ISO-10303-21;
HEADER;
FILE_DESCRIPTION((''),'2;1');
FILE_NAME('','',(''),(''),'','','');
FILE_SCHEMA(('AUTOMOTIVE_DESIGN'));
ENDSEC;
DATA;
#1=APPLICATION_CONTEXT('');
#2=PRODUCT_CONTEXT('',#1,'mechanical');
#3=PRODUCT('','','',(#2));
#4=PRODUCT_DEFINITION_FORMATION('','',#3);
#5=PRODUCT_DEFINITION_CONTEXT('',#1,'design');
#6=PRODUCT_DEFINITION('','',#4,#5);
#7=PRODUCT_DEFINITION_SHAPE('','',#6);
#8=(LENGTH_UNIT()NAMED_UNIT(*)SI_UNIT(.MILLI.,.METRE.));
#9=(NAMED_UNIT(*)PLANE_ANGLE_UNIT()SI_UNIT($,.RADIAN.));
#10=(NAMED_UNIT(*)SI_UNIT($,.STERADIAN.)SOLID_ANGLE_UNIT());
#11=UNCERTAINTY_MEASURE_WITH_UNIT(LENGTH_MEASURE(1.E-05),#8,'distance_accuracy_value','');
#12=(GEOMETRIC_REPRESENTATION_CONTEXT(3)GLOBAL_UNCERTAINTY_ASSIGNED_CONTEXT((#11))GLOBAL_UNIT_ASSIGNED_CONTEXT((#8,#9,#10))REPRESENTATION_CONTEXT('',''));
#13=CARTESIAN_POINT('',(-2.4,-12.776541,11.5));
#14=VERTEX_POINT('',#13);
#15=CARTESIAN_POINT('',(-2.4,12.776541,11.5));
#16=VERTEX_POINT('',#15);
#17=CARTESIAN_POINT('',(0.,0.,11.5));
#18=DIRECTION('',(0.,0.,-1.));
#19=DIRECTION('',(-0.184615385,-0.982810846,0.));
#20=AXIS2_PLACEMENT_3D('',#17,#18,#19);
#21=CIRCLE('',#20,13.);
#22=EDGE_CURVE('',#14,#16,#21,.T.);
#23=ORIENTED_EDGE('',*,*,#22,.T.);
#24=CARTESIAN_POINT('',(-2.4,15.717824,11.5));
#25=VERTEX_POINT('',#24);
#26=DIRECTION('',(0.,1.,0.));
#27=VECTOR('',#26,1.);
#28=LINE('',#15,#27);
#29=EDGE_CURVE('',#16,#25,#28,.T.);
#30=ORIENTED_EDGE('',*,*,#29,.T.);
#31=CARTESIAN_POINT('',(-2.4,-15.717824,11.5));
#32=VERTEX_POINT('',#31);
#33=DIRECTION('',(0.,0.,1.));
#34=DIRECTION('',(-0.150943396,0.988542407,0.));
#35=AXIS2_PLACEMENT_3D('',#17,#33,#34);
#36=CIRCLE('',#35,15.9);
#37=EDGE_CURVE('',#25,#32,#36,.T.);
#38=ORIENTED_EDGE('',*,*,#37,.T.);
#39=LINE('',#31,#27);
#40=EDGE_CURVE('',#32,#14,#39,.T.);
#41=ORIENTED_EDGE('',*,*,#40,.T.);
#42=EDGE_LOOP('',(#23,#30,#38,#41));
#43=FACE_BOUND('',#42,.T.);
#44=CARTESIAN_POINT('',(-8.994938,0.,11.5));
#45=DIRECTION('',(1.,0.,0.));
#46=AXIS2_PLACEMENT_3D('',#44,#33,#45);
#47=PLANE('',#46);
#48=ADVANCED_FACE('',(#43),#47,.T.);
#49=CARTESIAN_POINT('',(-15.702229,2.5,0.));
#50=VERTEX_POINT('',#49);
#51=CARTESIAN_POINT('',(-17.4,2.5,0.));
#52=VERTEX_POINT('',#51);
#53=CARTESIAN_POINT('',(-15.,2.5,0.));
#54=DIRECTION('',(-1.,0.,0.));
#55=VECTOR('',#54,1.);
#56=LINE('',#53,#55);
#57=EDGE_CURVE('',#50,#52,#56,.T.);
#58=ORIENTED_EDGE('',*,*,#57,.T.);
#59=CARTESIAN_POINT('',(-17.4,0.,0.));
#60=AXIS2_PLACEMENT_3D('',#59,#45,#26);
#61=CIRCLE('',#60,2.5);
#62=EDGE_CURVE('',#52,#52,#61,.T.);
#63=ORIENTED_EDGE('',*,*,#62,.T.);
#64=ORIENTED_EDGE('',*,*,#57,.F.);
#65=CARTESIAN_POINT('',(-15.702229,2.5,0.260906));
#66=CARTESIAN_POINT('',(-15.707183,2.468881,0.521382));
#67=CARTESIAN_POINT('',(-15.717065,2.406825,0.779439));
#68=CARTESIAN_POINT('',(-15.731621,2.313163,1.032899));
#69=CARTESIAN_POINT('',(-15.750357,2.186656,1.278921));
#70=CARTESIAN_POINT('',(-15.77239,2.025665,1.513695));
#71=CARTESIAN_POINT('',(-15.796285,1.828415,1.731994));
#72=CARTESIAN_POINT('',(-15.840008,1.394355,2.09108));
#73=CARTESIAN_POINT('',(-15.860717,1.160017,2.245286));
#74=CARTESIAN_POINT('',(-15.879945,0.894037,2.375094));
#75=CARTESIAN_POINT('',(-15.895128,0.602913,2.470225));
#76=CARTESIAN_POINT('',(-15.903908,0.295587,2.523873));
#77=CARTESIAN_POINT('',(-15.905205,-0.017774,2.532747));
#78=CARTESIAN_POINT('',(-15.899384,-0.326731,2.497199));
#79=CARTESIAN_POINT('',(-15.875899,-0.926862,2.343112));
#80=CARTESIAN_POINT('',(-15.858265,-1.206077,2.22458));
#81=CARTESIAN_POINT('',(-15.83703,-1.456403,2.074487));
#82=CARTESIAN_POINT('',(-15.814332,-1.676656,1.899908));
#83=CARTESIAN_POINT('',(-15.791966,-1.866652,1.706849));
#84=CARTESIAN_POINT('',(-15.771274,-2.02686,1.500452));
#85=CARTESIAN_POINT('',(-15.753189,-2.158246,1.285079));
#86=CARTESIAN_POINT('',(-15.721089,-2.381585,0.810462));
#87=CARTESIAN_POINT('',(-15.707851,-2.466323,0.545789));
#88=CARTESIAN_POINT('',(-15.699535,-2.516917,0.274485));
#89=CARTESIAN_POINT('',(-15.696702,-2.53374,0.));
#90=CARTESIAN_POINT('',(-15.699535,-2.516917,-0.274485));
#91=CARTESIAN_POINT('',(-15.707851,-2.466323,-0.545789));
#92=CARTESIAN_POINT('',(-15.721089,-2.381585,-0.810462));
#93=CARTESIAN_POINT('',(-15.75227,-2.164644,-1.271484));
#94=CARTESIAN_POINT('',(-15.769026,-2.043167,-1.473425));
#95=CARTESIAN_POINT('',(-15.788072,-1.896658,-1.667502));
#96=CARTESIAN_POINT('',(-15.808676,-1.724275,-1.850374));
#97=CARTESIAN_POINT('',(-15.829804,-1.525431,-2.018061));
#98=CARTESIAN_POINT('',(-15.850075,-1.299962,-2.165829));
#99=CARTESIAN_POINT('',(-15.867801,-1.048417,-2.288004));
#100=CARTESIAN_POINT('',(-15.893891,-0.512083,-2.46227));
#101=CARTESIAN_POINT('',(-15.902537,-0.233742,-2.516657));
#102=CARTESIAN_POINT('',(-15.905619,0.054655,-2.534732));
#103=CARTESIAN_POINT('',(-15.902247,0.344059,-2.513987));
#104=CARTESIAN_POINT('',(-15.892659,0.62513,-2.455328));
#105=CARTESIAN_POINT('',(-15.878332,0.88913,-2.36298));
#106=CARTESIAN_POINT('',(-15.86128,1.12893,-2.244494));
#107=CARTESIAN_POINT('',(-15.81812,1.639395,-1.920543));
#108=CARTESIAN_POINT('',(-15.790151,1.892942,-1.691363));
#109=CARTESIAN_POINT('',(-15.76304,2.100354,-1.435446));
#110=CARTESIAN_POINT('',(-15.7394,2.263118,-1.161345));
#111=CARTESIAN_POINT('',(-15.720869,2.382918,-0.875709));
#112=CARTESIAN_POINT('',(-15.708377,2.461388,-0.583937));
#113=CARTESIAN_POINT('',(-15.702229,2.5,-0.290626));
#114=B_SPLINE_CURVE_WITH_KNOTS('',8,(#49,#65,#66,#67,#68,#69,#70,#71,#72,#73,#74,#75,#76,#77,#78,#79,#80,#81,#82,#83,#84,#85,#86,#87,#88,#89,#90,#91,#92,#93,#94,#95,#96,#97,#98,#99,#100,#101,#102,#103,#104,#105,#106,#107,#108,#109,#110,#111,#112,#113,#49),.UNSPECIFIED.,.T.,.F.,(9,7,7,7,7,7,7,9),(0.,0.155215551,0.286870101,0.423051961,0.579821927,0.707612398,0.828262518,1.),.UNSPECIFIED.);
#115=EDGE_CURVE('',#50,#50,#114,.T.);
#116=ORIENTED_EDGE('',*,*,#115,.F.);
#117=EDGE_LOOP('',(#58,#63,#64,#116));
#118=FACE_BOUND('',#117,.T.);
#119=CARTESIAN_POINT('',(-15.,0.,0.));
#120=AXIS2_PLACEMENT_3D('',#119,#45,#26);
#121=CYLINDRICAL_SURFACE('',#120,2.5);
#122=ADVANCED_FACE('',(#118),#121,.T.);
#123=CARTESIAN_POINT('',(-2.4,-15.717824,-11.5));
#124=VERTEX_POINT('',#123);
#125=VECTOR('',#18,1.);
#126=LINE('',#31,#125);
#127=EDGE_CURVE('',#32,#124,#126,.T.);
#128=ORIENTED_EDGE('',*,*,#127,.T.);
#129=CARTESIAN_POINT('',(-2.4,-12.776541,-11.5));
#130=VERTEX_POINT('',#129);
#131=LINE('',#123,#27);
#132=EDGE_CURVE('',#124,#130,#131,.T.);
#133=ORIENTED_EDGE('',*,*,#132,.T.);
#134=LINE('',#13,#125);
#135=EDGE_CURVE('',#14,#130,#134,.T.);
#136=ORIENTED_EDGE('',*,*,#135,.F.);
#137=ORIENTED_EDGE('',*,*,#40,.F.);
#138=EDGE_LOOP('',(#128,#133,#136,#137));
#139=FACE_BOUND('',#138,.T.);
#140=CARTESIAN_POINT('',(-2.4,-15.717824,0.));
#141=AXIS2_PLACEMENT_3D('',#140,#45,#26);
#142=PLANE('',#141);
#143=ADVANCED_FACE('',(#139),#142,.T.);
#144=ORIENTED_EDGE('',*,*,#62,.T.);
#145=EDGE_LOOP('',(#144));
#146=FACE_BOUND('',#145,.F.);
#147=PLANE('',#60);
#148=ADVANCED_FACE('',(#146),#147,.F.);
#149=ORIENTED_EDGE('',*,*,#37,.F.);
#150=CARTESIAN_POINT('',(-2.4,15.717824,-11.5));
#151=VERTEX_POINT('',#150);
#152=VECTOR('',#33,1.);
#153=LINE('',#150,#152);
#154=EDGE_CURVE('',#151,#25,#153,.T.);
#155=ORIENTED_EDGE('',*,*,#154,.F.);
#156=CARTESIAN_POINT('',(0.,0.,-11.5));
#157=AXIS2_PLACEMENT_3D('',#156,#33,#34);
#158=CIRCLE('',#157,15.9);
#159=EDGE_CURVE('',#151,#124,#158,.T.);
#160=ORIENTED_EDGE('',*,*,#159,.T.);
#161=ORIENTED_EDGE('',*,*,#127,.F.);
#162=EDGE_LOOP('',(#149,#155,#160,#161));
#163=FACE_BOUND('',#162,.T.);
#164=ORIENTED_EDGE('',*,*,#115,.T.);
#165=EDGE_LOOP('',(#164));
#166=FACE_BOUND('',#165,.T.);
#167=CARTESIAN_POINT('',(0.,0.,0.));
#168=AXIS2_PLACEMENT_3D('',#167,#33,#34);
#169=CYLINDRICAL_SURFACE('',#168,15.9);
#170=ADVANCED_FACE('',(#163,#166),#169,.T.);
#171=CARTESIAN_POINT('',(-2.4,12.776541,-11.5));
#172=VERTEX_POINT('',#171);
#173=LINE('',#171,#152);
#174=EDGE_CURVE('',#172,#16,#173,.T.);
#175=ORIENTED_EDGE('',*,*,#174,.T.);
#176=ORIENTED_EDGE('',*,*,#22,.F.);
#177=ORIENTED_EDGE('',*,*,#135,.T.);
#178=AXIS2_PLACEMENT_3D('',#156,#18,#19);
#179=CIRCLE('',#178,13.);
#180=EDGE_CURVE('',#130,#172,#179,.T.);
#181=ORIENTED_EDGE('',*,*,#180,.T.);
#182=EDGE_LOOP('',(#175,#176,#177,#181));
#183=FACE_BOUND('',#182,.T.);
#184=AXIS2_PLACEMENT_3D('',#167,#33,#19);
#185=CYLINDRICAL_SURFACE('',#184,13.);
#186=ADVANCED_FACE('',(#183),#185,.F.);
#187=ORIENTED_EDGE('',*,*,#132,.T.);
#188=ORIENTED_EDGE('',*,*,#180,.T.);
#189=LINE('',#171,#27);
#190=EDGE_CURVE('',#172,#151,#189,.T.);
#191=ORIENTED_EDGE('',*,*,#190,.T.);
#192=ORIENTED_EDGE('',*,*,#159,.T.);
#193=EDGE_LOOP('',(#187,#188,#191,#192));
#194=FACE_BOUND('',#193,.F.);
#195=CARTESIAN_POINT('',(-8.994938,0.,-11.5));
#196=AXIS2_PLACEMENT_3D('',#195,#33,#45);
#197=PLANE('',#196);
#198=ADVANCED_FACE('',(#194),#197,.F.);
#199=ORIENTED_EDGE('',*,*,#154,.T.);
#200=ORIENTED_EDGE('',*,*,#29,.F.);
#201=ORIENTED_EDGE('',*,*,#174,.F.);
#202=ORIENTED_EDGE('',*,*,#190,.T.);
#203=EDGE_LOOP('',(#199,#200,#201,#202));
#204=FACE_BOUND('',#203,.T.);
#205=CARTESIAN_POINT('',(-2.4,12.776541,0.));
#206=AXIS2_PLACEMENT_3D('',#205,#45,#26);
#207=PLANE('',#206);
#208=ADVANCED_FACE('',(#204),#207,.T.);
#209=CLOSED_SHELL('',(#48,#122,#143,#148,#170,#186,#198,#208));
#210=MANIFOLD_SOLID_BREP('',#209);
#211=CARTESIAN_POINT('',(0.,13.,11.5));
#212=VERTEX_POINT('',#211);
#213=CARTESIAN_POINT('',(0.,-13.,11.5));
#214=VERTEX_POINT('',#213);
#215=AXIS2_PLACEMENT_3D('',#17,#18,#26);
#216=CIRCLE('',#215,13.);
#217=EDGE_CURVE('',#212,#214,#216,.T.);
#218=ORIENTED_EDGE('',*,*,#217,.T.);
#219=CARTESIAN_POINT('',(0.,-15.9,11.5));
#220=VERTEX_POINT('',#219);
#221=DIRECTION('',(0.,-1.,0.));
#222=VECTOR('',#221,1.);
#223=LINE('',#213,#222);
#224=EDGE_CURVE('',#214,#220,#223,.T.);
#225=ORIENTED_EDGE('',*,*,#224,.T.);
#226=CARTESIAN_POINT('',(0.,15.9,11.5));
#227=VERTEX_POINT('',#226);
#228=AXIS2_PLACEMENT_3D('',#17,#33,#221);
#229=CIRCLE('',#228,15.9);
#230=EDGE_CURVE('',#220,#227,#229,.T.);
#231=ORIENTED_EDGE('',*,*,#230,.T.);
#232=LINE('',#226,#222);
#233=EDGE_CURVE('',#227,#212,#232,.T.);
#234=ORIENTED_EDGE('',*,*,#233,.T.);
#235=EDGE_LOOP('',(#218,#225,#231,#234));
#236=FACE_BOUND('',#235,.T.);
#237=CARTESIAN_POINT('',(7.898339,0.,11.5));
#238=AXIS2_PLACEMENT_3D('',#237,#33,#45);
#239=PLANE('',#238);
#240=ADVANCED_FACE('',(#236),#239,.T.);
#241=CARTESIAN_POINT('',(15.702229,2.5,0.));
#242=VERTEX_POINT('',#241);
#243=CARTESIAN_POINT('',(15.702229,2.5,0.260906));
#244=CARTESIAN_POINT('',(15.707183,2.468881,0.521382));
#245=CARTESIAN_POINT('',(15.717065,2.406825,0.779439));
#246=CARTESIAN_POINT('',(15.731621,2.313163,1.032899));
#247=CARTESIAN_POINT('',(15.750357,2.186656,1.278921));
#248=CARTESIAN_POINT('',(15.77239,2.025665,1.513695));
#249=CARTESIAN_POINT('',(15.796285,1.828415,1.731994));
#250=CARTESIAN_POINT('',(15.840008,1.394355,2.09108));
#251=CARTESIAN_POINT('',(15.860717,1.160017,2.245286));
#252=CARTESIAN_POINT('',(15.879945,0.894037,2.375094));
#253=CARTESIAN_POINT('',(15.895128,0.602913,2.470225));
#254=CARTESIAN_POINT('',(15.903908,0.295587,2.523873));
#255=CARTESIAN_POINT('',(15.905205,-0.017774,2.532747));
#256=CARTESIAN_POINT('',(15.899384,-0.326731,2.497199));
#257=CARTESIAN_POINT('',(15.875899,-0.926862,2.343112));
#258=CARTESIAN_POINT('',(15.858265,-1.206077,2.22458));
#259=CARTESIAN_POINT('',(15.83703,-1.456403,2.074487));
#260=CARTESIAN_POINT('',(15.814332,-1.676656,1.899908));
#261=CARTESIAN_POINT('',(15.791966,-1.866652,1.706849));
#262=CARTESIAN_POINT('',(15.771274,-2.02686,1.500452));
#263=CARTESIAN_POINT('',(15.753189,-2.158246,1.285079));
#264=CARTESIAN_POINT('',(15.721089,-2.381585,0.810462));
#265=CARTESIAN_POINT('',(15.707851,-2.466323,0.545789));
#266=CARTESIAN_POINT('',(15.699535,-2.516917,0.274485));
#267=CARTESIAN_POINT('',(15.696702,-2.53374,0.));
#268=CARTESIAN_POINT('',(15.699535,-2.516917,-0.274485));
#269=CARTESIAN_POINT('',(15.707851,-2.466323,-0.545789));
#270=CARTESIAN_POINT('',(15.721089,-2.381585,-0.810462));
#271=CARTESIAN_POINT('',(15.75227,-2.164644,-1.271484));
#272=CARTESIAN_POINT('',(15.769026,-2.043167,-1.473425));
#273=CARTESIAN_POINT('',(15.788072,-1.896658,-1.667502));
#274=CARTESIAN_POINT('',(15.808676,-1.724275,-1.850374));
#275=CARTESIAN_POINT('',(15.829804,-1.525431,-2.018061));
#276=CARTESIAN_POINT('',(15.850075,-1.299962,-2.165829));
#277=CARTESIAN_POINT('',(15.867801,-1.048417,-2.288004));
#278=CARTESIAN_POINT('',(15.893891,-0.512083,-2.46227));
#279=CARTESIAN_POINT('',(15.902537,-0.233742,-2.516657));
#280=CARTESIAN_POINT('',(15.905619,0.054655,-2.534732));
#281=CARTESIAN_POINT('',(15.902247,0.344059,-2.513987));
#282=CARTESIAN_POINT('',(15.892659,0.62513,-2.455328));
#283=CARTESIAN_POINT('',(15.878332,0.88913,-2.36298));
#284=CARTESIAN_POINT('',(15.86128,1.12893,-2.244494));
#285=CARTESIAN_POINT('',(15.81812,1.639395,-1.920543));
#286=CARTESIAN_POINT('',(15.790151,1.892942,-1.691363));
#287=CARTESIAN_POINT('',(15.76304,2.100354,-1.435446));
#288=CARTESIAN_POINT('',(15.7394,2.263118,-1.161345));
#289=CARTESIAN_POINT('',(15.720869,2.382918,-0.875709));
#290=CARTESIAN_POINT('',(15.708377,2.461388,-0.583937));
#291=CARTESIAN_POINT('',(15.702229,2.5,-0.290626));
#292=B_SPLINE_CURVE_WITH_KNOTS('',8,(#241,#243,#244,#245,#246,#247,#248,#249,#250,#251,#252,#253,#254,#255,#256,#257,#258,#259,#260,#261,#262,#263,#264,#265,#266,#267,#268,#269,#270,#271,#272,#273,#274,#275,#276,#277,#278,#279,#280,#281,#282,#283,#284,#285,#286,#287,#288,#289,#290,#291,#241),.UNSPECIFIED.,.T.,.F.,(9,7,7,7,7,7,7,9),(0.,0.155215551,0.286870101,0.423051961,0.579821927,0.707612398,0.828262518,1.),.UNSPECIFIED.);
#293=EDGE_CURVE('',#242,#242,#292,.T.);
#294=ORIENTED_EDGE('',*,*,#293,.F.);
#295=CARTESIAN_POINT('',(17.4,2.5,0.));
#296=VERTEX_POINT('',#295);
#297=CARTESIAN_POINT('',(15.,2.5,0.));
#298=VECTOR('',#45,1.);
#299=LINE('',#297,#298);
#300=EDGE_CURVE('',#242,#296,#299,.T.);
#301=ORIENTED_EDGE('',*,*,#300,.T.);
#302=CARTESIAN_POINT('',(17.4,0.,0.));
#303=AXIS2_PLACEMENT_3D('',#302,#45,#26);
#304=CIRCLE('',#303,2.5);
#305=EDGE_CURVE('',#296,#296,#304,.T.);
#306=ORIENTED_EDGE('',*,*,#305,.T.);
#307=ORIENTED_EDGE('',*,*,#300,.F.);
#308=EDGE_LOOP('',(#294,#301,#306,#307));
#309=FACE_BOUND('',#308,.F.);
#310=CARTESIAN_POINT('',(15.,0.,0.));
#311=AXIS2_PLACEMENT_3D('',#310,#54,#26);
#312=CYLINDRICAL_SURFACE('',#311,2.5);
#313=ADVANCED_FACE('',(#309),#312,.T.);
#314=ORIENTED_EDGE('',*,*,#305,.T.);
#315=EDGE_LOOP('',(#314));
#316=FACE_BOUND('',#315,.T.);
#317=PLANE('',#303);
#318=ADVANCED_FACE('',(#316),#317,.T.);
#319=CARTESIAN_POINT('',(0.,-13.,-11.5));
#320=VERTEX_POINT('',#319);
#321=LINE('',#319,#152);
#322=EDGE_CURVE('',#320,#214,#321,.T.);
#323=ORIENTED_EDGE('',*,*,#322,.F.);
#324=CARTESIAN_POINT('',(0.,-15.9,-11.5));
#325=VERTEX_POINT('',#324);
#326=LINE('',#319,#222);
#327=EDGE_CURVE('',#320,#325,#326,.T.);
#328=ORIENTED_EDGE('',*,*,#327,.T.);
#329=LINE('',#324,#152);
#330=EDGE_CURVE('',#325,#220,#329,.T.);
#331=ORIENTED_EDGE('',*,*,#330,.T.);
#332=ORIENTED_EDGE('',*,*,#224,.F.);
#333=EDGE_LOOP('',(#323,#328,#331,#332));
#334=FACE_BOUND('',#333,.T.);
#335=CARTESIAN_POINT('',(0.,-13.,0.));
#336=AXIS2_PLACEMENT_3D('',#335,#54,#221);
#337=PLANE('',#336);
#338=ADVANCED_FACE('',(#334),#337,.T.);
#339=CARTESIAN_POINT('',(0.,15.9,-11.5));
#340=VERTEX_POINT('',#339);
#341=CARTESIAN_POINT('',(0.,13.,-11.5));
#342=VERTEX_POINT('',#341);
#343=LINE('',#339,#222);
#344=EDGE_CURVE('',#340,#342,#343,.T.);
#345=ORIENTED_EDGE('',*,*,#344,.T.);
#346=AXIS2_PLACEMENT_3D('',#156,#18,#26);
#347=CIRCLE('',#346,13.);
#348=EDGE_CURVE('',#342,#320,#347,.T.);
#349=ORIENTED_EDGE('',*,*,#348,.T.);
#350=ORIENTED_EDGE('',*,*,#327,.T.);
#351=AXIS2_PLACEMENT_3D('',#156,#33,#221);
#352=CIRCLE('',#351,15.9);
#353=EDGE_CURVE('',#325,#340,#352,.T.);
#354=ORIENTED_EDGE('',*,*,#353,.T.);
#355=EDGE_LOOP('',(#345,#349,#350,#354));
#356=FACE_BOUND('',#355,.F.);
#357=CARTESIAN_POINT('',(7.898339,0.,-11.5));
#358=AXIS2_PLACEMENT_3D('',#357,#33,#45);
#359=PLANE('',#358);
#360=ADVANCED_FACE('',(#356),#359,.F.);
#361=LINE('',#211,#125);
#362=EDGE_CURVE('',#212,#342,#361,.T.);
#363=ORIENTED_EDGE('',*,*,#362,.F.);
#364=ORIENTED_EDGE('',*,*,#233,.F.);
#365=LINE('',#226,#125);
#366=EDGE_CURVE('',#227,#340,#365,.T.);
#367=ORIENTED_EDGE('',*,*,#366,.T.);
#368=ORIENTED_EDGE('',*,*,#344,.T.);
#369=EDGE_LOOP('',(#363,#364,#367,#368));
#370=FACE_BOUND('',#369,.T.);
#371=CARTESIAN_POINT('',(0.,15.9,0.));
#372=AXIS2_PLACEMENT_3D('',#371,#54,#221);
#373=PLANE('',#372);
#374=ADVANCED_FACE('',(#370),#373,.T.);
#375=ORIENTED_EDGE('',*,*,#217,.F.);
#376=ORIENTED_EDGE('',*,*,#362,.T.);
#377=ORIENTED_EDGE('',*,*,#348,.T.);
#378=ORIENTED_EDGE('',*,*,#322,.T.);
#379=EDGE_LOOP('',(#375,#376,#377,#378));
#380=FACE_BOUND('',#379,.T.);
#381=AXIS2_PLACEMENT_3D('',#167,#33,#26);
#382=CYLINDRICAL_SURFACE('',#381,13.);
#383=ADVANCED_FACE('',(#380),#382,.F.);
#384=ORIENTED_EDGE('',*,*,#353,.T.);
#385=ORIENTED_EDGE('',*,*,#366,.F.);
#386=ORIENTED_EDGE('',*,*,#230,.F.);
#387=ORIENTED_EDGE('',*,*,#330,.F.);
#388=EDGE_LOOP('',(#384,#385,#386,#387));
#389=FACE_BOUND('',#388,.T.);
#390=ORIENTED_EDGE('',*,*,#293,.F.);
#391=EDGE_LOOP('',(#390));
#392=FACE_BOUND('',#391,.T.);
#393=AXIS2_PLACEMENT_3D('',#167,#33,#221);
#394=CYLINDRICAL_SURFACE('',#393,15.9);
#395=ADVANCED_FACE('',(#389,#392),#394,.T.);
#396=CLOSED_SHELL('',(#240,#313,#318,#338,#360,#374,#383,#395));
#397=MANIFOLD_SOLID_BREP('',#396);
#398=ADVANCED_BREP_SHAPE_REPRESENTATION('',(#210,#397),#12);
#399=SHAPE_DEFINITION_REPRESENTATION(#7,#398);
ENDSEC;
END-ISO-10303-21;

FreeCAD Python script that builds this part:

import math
import FreeCAD as App
import Part
import Sketcher

V = App.Vector
Q = App.Units.Quantity

doc = App.newDocument("Part")
params = doc.addObject("Spreadsheet::Sheet", "Params")
for row, (alias, value) in enumerate([
    ("sketch1_radius", "13 mm"),
    ("sketch1_radius2", "15.9 mm"),
    ("pad1_length", "11.5 mm"),
    ("pad1_length2", "11.5 mm"),
    ("sketch2_diameter", "5 mm"),
    ("pad2_length", "2.4 mm"),
    ("sketch3_radius", "13 mm"),
    ("sketch3_radius2", "15.9 mm"),
    ("pad3_length", "11.5 mm"),
    ("pad3_length2", "11.5 mm"),
    ("sketch4_diameter", "5 mm"),
    ("pad4_length", "2.4 mm"),
], start=1):
    params.set(f"A{row}", alias)
    params.set(f"B{row}", "=" + value)
    params.setAlias(f"B{row}", alias)

body = doc.addObject("PartDesign::Body", "Body")

sketch1 = body.newObject("Sketcher::SketchObject", "Sketch")
sketch1.AttachmentSupport = (doc.getObject("XY_Plane"), [""])
sketch1.MapMode = "FlatFace"
sketch1.addGeometry(Part.ArcOfCircle(Part.Circle(V(0, 0, 0), V(0, 0, 1), 13), math.radians(101), math.radians(259)), False)
sketch1.addGeometry(Part.LineSegment(V(-2.4, 12.8, 0), V(-2.4, 15.7, 0)), False)
sketch1.addGeometry(Part.ArcOfCircle(Part.Circle(V(0, 0, 0), V(0, 0, 1), 15.9), math.radians(99), math.radians(261)), False)
sketch1.addGeometry(Part.LineSegment(V(-2.4, -15.7, 0), V(-2.4, -12.8, 0)), False)
sketch1.addConstraint(Sketcher.Constraint("Coincident", 0, 1, 1, 1))
sketch1.addConstraint(Sketcher.Constraint("Coincident", 1, 2, 2, 1))
sketch1.addConstraint(Sketcher.Constraint("Coincident", 2, 2, 3, 1))
sketch1.addConstraint(Sketcher.Constraint("Coincident", 3, 2, 0, 2))
sketch1.addConstraint(Sketcher.Constraint("Vertical", 1))
sketch1.addConstraint(Sketcher.Constraint("Vertical", 3))
sketch1.addConstraint(Sketcher.Constraint("Coincident", 0, 3, -1, 1))
sketch1.addConstraint(Sketcher.Constraint("Coincident", 2, 3, -1, 1))
sketch1.addConstraint(Sketcher.Constraint("Vertical", 1, 2, 2, 2))
sketch1.addConstraint(Sketcher.Constraint("Radius", 0, Q("13 mm")))
sketch1.addConstraint(Sketcher.Constraint("Radius", 2, Q("15.9 mm")))
sketch1.addConstraint(Sketcher.Constraint("DistanceX", 0, 1, -1, 1, Q("2.4 mm")))
sketch1.setExpression("Constraints[9]", "Params.sketch1_radius")
sketch1.setExpression("Constraints[10]", "Params.sketch1_radius2")
pad1 = body.newObject("PartDesign::Pad", "Pad")
pad1.Profile = sketch1
pad1.Type = "TwoLengths"
pad1.setExpression("Length", "Params.pad1_length")
pad1.setExpression("Length2", "Params.pad1_length2")

sketch2 = body.newObject("Sketcher::SketchObject", "Sketch001")
sketch2.AttachmentSupport = (doc.getObject("YZ_Plane"), [""])
sketch2.MapMode = "FlatFace"
sketch2.AttachmentOffset = App.Placement(V(0, 0, -15), App.Rotation())
sketch2.addGeometry(Part.Circle(V(0, 0, 0), V(0, 0, 1), 2.5), False)
sketch2.addConstraint(Sketcher.Constraint("Coincident", 0, 3, -1, 1))
sketch2.addConstraint(Sketcher.Constraint("Diameter", 0, Q("5 mm")))
sketch2.setExpression("Constraints[1]", "Params.sketch2_diameter")
pad2 = body.newObject("PartDesign::Pad", "Pad001")
pad2.Profile = sketch2
pad2.setExpression("Length", "Params.pad2_length")
pad2.Reversed = True
body2 = doc.addObject("PartDesign::Body", "Body001")

sketch3 = body2.newObject("Sketcher::SketchObject", "Sketch002")
sketch3.AttachmentSupport = (doc.getObject("XY_Plane001"), [""])
sketch3.MapMode = "FlatFace"
sketch3.addGeometry(Part.ArcOfCircle(Part.Circle(V(0, 0, 0), V(0, 0, 1), 13), math.radians(-90), math.radians(90)), False)
sketch3.addGeometry(Part.LineSegment(V(0, -13, 0), V(0, -15.9, 0)), False)
sketch3.addGeometry(Part.ArcOfCircle(Part.Circle(V(0, 0, 0), V(0, 0, 1), 15.9), math.radians(-90), math.radians(90)), False)
sketch3.addGeometry(Part.LineSegment(V(0, 15.9, 0), V(0, 13, 0)), False)
sketch3.addConstraint(Sketcher.Constraint("Coincident", 0, 1, 1, 1))
sketch3.addConstraint(Sketcher.Constraint("Coincident", 1, 2, 2, 1))
sketch3.addConstraint(Sketcher.Constraint("Coincident", 2, 2, 3, 1))
sketch3.addConstraint(Sketcher.Constraint("Coincident", 3, 2, 0, 2))
sketch3.addConstraint(Sketcher.Constraint("Vertical", 1))
sketch3.addConstraint(Sketcher.Constraint("Vertical", 3))
sketch3.addConstraint(Sketcher.Constraint("Coincident", 0, 3, -1, 1))
sketch3.addConstraint(Sketcher.Constraint("Coincident", 2, 3, -1, 1))
sketch3.addConstraint(Sketcher.Constraint("PointOnObject", 0, 1, -2))
sketch3.addConstraint(Sketcher.Constraint("PointOnObject", 2, 2, -2))
sketch3.addConstraint(Sketcher.Constraint("Radius", 0, Q("13 mm")))
sketch3.addConstraint(Sketcher.Constraint("Radius", 2, Q("15.9 mm")))
sketch3.setExpression("Constraints[10]", "Params.sketch3_radius")
sketch3.setExpression("Constraints[11]", "Params.sketch3_radius2")
pad3 = body2.newObject("PartDesign::Pad", "Pad002")
pad3.Profile = sketch3
pad3.Type = "TwoLengths"
pad3.setExpression("Length", "Params.pad3_length")
pad3.setExpression("Length2", "Params.pad3_length2")

sketch4 = body2.newObject("Sketcher::SketchObject", "Sketch003")
sketch4.AttachmentSupport = (doc.getObject("YZ_Plane001"), [""])
sketch4.MapMode = "FlatFace"
sketch4.AttachmentOffset = App.Placement(V(0, 0, 15), App.Rotation())
sketch4.addGeometry(Part.Circle(V(0, 0, 0), V(0, 0, 1), 2.5), False)
sketch4.addConstraint(Sketcher.Constraint("Coincident", 0, 3, -1, 1))
sketch4.addConstraint(Sketcher.Constraint("Diameter", 0, Q("5 mm")))
sketch4.setExpression("Constraints[1]", "Params.sketch4_diameter")
pad4 = body2.newObject("PartDesign::Pad", "Pad003")
pad4.Profile = sketch4
pad4.setExpression("Length", "Params.pad4_length")

doc.recompute()
